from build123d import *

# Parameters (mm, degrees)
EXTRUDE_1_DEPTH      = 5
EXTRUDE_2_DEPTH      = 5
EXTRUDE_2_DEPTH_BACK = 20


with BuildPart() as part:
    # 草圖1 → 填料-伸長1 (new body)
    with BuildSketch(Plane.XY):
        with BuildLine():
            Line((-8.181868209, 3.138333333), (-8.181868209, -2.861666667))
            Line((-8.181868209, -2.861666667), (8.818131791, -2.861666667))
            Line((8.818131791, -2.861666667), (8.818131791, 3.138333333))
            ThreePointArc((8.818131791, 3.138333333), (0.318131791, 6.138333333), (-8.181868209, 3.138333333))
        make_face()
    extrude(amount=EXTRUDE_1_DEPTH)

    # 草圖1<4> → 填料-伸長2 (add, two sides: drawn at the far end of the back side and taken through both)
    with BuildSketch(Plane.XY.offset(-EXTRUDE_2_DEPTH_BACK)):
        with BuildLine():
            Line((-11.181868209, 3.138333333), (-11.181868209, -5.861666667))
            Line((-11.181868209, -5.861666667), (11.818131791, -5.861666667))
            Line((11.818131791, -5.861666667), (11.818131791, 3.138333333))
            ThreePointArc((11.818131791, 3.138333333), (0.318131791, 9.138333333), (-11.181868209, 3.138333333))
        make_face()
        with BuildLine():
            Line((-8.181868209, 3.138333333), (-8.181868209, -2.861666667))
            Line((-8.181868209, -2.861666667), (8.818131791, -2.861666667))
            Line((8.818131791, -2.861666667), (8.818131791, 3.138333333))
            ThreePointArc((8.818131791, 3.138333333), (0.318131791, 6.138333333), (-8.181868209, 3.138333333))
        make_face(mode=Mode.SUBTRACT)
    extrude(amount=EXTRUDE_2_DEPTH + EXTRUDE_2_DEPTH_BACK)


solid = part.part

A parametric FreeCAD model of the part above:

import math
import FreeCAD as App
import Part
import Sketcher

V = App.Vector

doc = App.newDocument("Part")
body = doc.addObject("PartDesign::Body", "Body")

# Sketch on XY plane
sketch1 = doc.addObject("Sketcher::SketchObject", "Sketch")
body.addObject(sketch1)
sketch1.AttachmentSupport = (doc.XY_Plane, [""])
sketch1.MapMode = "FlatFace"
sketch1.addGeometry([
    Part.LineSegment(V(-8, 3, 0), V(-8, -3, 0)),
    Part.LineSegment(V(-8, -3, 0), V(9, -3, 0)),
    Part.LineSegment(V(9, -3, 0), V(9, 3, 0)),
    Part.ArcOfCircle(Part.Circle(V(0, -7, 0), V(0, 0, 1), 14), math.radians(51), math.radians(129)),
], False)
sketch1.addConstraint([
    Sketcher.Constraint("Coincident", 0, 2, 1, 1),
    Sketcher.Constraint("Coincident", 1, 2, 2, 1),
    Sketcher.Constraint("Coincident", 2, 2, 3, 1),
    Sketcher.Constraint("Coincident", 3, 2, 0, 1),
    Sketcher.Constraint("Vertical", 0),
    Sketcher.Constraint("Horizontal", 1),
    Sketcher.Constraint("Vertical", 2),
    Sketcher.Constraint("Horizontal", 2, 2, 3, 2),
    Sketcher.Constraint("DistanceX", 1, 1, 1, 2, 17.0),
    Sketcher.Constraint("DistanceY", 0, 2, 0, 1, 6.0),
    Sketcher.Constraint("Radius", 3, 13.541667),
    Sketcher.Constraint("DistanceX", -1, 1, 3, 3, 0.318132),
    Sketcher.Constraint("DistanceY", 3, 3, -1, 1, 7.403333),
])
pad1 = doc.addObject("PartDesign::Pad", "Pad")
body.addObject(pad1)
pad1.Profile = sketch1
pad1.Length = 5

# Sketch on XY plane
sketch2 = doc.addObject("Sketcher::SketchObject", "Sketch001")
body.addObject(sketch2)
sketch2.AttachmentSupport = (doc.XY_Plane, [""])
sketch2.MapMode = "FlatFace"
sketch2.addGeometry([
    Part.LineSegment(V(-11, 3, 0), V(-11, -6, 0)),  # 0
    Part.LineSegment(V(-11, -6, 0), V(12, -6, 0)),  # 1
    Part.LineSegment(V(12, -6, 0), V(12, 3, 0)),  # 2
    Part.ArcOfCircle(Part.Circle(V(0, -5, 0), V(0, 0, 1), 14), math.radians(35), math.radians(145)),  # 3
    Part.LineSegment(V(-8, -3, 0), V(-8, 3, 0)),  # 4
    Part.ArcOfCircle(Part.Circle(V(0, -7, 0), V(0, 0, 1), 14), math.radians(51), math.radians(129)),  # 5
    Part.LineSegment(V(9, 3, 0), V(9, -3, 0)),  # 6
    Part.LineSegment(V(9, -3, 0), V(-8, -3, 0)),  # 7
], False)
sketch2.addConstraint([
    Sketcher.Constraint("Coincident", 0, 2, 1, 1),
    Sketcher.Constraint("Coincident", 1, 2, 2, 1),
    Sketcher.Constraint("Coincident", 2, 2, 3, 1),
    Sketcher.Constraint("Coincident", 3, 2, 0, 1),
    Sketcher.Constraint("Coincident", 4, 2, 5, 2),
    Sketcher.Constraint("Coincident", 5, 1, 6, 1),
    Sketcher.Constraint("Coincident", 6, 2, 7, 1),
    Sketcher.Constraint("Coincident", 7, 2, 4, 1),
    Sketcher.Constraint("Vertical", 0),
    Sketcher.Constraint("Horizontal", 1),
    Sketcher.Constraint("Vertical", 2),
    Sketcher.Constraint("Vertical", 4),
    Sketcher.Constraint("Vertical", 6),
    Sketcher.Constraint("Horizontal", 7),
    Sketcher.Constraint("Horizontal", 2, 2, 3, 2),
    Sketcher.Constraint("Horizontal", 3, 2, 4, 2),
    Sketcher.Constraint("Horizontal", 4, 2, 5, 1),
    Sketcher.Constraint("Vertical", 3, 3, 5, 3),
    Sketcher.Constraint("DistanceX", 1, 1, 1, 2, 23.0),
    Sketcher.Constraint("DistanceX", 7, 2, 7, 1, 17.0),
    Sketcher.Constraint("DistanceY", 0, 2, 0, 1, 9.0),
    Sketcher.Constraint("DistanceY", 4, 1, 4, 2, 6.0),
    Sketcher.Constraint("Radius", 3, 14.020833),
    Sketcher.Constraint("Radius", 5, 13.541667),
    Sketcher.Constraint("DistanceY", 3, 3, -1, 1, 4.8825),
    Sketcher.Constraint("DistanceX", -1, 1, 3, 3, 0.318132),
])
pad2 = doc.addObject("PartDesign::Pad", "Pad001")
body.addObject(pad2)
pad2.Profile = sketch2
pad2.Type = "TwoLengths"
pad2.Length = 5
pad2.Length2 = 20

doc.recompute()
